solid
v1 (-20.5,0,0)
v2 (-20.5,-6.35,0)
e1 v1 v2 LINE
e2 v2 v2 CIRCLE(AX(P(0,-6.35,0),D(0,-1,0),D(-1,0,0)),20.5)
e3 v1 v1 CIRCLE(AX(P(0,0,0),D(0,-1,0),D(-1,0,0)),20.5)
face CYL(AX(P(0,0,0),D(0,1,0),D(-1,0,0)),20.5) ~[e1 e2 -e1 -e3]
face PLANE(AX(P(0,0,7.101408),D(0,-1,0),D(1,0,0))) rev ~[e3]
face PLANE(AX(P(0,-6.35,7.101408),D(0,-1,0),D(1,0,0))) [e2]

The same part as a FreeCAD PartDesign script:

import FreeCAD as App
import Part
import Sketcher

V = App.Vector

doc = App.newDocument("Part")
body = doc.addObject("PartDesign::Body", "Body")

# Sketch on XZ plane
sketch1 = doc.addObject("Sketcher::SketchObject", "Sketch")
body.addObject(sketch1)
sketch1.AttachmentSupport = (doc.XZ_Plane, [""])
sketch1.MapMode = "FlatFace"
sketch1.addGeometry(Part.Circle(V(0, 0, 0), V(0, 0, 1), 20), False)
sketch1.addConstraint([
    Sketcher.Constraint("Coincident", 0, 3, -1, 1),
    Sketcher.Constraint("Diameter", 0, 41.0),
])
pad1 = doc.addObject("PartDesign::Pad", "Pad")
body.addObject(pad1)
pad1.Profile = sketch1
pad1.Length = 6.35

doc.recompute()
